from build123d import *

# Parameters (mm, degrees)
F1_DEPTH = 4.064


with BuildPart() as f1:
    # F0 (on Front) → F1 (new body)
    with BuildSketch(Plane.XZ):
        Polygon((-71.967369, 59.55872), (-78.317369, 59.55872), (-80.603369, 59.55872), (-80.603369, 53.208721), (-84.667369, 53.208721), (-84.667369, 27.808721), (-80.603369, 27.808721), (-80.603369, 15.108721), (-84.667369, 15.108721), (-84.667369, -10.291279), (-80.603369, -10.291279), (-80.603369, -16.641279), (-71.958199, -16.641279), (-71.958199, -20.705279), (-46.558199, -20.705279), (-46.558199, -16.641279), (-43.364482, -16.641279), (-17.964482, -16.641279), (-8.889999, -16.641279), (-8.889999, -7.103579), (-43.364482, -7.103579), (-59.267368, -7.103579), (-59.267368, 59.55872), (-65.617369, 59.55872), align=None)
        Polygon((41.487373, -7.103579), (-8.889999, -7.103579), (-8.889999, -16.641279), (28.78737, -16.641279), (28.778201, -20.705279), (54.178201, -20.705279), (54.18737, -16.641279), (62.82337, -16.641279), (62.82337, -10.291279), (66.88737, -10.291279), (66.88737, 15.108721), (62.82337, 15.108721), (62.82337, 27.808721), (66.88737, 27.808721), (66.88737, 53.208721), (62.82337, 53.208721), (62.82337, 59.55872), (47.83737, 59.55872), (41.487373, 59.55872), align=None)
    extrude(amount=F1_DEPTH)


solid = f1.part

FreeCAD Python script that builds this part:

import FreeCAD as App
import Part
import Sketcher
from FreeCAD import Vector
Q = App.Units.Quantity


def add_polygon(sketch, points):
    """Adds a closed chain of lines whose ends are joined by coincident constraints."""
    first, n = sketch.GeometryCount, len(points)
    for a, b in zip(points, points[1:] + points[:1]):
        sketch.addGeometry(Part.LineSegment(App.Vector(*a, 0), App.Vector(*b, 0)), False)
    for i in range(n):
        sketch.addConstraint(Sketcher.Constraint("Coincident", first + i, 2, first + (i + 1) % n, 1))

doc = App.newDocument("Part")
body = doc.addObject("PartDesign::Body", "Body")

sketch1 = body.newObject("Sketcher::SketchObject", "Sketch")
sketch1.AttachmentSupport = (doc.getObject("XZ_Plane"), [""])
sketch1.MapMode = "FlatFace"
add_polygon(sketch1, [(-80.6, 59.6), (-80.6, 53.2), (-84.7, 53.2), (-84.7, 27.8), (-80.6, 27.8), (-80.6, 15.1), (-84.7, 15.1), (-84.7, -10.3), (-80.6, -10.3), (-80.6, -16.6), (-72, -16.6), (-72, -20.7), (-46.6, -20.7), (-46.6, -16.6), (28.8, -16.6), (28.8, -20.7), (54.2, -20.7), (54.2, -16.6), (62.8, -16.6), (62.8, -10.3), (66.9, -10.3), (66.9, 15.1), (62.8, 15.1), (62.8, 27.8), (66.9, 27.8), (66.9, 53.2), (62.8, 53.2), (62.8, 59.6), (41.5, 59.6), (41.5, -7.1), (-59.3, -7.1), (-59.3, 59.6)])
sketch1.addConstraint(Sketcher.Constraint("Vertical", 0))
sketch1.addConstraint(Sketcher.Constraint("Horizontal", 1))
sketch1.addConstraint(Sketcher.Constraint("Vertical", 2))
sketch1.addConstraint(Sketcher.Constraint("Horizontal", 3))
sketch1.addConstraint(Sketcher.Constraint("Vertical", 4))
sketch1.addConstraint(Sketcher.Constraint("Horizontal", 5))
sketch1.addConstraint(Sketcher.Constraint("Vertical", 6))
sketch1.addConstraint(Sketcher.Constraint("Horizontal", 7))
sketch1.addConstraint(Sketcher.Constraint("Vertical", 8))
sketch1.addConstraint(Sketcher.Constraint("Horizontal", 9))
sketch1.addConstraint(Sketcher.Constraint("Vertical", 10))
sketch1.addConstraint(Sketcher.Constraint("Horizontal", 11))
sketch1.addConstraint(Sketcher.Constraint("Vertical", 12))
sketch1.addConstraint(Sketcher.Constraint("Horizontal", 13))
sketch1.addConstraint(Sketcher.Constraint("Horizontal", 15))
sketch1.addConstraint(Sketcher.Constraint("Horizontal", 17))
sketch1.addConstraint(Sketcher.Constraint("Vertical", 18))
sketch1.addConstraint(Sketcher.Constraint("Horizontal", 19))
sketch1.addConstraint(Sketcher.Constraint("Vertical", 20))
sketch1.addConstraint(Sketcher.Constraint("Horizontal", 21))
sketch1.addConstraint(Sketcher.Constraint("Vertical", 22))
sketch1.addConstraint(Sketcher.Constraint("Horizontal", 23))
sketch1.addConstraint(Sketcher.Constraint("Vertical", 24))
sketch1.addConstraint(Sketcher.Constraint("Horizontal", 25))
sketch1.addConstraint(Sketcher.Constraint("Vertical", 26))
sketch1.addConstraint(Sketcher.Constraint("Horizontal", 27))
sketch1.addConstraint(Sketcher.Constraint("Vertical", 28))
sketch1.addConstraint(Sketcher.Constraint("Horizontal", 29))
sketch1.addConstraint(Sketcher.Constraint("Vertical", 30))
sketch1.addConstraint(Sketcher.Constraint("Horizontal", 31))
sketch1.addConstraint(Sketcher.Constraint("Parallel", 14, 16))
sketch1.addConstraint(Sketcher.Constraint("Horizontal", 9, 2, 12, 2))
sketch1.addConstraint(Sketcher.Constraint("Horizontal", 11, 2, 14, 2))
sketch1.addConstraint(Sketcher.Constraint("Horizontal", 13, 2, 16, 2))
sketch1.addConstraint(Sketcher.Constraint("Horizontal", 7, 2, 18, 2))
sketch1.addConstraint(Sketcher.Constraint("Horizontal", 5, 2, 20, 2))
sketch1.addConstraint(Sketcher.Constraint("Horizontal", 3, 2, 22, 2))
sketch1.addConstraint(Sketcher.Constraint("Horizontal", 1, 2, 24, 2))
sketch1.addConstraint(Sketcher.Constraint("Horizontal", 27, 2, 30, 2))
sketch1.addConstraint(Sketcher.Constraint("Vertical", 0, 2, 3, 2))
sketch1.addConstraint(Sketcher.Constraint("Vertical", 2, 2, 5, 2))
sketch1.addConstraint(Sketcher.Constraint("Vertical", 4, 2, 7, 2))
sketch1.addConstraint(Sketcher.Constraint("Vertical", 18, 2, 21, 2))
sketch1.addConstraint(Sketcher.Constraint("Vertical", 20, 2, 23, 2))
sketch1.addConstraint(Sketcher.Constraint("Vertical", 22, 2, 25, 2))
sketch1.addConstraint(Sketcher.Constraint("Equal", 11, 15))
sketch1.addConstraint(Sketcher.Constraint("Equal", 7, 19))
sketch1.addConstraint(Sketcher.Constraint("Equal", 15, 2))
sketch1.addConstraint(Sketcher.Constraint("Equal", 2, 6))
sketch1.addConstraint(Sketcher.Constraint("Equal", 0, 8))
sketch1.addConstraint(Sketcher.Constraint("Equal", 25, 10))
sketch1.addConstraint(Sketcher.Constraint("DistanceX", 11, 1, 11, 2, Q("1 in")))
sketch1.addConstraint(Sketcher.Constraint("DistanceY", 4, 2, 4, 1, Q("0.5 in")))
sketch1.addConstraint(Sketcher.Constraint("DistanceX", 27, 2, 24, 2, Q("0.9999999 in")))
sketch1.addConstraint(Sketcher.Constraint("DistanceX", 1, 2, 30, 2, Q("1 in")))
sketch1.addConstraint(Sketcher.Constraint("DistanceX", 1, 2, 1, 1, Q("0.16 in")))
sketch1.addConstraint(Sketcher.Constraint("DistanceX", 17, 1, 17, 2, Q("0.34 in")))
sketch1.addConstraint(Sketcher.Constraint("DistanceY", 0, 2, 0, 1, Q("0.25 in")))
sketch1.addConstraint(Sketcher.Constraint("DistanceY", 28, 2, 28, 1, Q("2.6245 in")))
sketch1.addConstraint(Sketcher.Constraint("DistanceX", 9, 2, -1, 1, Q("2.833 in")))
sketch1.addConstraint(Sketcher.Constraint("DistanceX", -1, 1, 14, 2, Q("1.133 in")))
sketch1.addConstraint(Sketcher.Constraint("DistanceX", 9, 1, 9, 2, 8.64517))
sketch1.addConstraint(Sketcher.Constraint("DistanceX", 13, 1, 13, 2, 75.345569))
sketch1.addConstraint(Sketcher.Constraint("DistanceY", -1, 1, 0, 2, 53.208721))
pad1 = body.newObject("PartDesign::Pad", "Pad")
pad1.Profile = sketch1
pad1.Length = Q("0.16 in")

doc.recompute()
